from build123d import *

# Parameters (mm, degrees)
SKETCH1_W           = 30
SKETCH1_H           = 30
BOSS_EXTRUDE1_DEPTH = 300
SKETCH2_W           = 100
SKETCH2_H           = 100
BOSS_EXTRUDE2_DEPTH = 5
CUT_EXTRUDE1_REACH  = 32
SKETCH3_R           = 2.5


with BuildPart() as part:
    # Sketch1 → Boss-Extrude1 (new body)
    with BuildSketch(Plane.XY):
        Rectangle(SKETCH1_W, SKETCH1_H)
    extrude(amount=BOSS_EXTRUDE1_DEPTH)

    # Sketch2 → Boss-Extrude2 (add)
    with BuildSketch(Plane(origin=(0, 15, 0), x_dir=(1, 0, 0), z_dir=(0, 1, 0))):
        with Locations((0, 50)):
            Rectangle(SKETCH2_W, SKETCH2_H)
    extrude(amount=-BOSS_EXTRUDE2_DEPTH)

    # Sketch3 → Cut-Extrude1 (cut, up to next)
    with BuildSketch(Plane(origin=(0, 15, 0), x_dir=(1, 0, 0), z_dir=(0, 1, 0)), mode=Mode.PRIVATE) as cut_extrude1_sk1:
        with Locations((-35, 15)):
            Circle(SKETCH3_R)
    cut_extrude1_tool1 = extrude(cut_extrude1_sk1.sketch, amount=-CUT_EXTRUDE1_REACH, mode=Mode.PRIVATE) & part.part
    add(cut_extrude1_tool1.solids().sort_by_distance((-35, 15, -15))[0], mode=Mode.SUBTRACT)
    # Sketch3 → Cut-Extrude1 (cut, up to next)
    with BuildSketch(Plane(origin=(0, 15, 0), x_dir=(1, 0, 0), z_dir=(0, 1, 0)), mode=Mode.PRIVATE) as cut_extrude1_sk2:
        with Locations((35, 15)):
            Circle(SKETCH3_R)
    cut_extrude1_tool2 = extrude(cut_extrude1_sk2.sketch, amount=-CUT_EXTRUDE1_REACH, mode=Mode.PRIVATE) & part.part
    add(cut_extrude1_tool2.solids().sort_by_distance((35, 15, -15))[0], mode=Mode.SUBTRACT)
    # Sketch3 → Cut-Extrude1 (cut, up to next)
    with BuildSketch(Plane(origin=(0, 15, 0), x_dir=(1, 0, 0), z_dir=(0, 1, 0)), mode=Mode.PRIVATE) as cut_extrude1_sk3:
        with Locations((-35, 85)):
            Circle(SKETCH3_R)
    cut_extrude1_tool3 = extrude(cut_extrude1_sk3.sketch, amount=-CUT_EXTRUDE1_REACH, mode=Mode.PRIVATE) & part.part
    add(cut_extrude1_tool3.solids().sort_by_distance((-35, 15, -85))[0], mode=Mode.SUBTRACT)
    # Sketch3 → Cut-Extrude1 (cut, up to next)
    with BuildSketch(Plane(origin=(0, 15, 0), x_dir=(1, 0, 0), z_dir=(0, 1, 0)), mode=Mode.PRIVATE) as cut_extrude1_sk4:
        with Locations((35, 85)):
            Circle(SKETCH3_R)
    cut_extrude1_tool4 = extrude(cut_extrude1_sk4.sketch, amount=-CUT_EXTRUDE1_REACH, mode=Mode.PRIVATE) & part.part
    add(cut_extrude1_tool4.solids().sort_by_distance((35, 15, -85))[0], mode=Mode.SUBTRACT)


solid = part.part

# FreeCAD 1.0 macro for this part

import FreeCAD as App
import Part
import Sketcher
from FreeCAD import Vector
Q = App.Units.Quantity


def add_polygon(sketch, points):
    """Adds a closed chain of lines whose ends are joined by coincident constraints."""
    first, n = sketch.GeometryCount, len(points)
    for a, b in zip(points, points[1:] + points[:1]):
        sketch.addGeometry(Part.LineSegment(App.Vector(*a, 0), App.Vector(*b, 0)), False)
    for i in range(n):
        sketch.addConstraint(Sketcher.Constraint("Coincident", first + i, 2, first + (i + 1) % n, 1))

doc = App.newDocument("Part")
params = doc.addObject("Spreadsheet::Sheet", "Params")
for row, (alias, value) in enumerate([
    ("sketch1_width", "30 mm"),
    ("pad1_length", "300 mm"),
    ("sketch2_width", "100 mm"),
    ("pad2_length", "5 mm"),
    ("sketch3_diameter", "5 mm"),
    ("sketch4_diameter", "5 mm"),
    ("sketch5_diameter", "5 mm"),
    ("sketch6_diameter", "5 mm"),
], start=1):
    params.set(f"A{row}", alias)
    params.set(f"B{row}", "=" + value)
    params.setAlias(f"B{row}", alias)

body = doc.addObject("PartDesign::Body", "Body")

sketch1 = body.newObject("Sketcher::SketchObject", "Sketch")
sketch1.AttachmentSupport = (doc.getObject("XY_Plane"), [""])
sketch1.MapMode = "FlatFace"
add_polygon(sketch1, [(-15, 15), (-15, -15), (15, -15), (15, 15)])
sketch1.addConstraint([
    Sketcher.Constraint("Vertical", 0),
    Sketcher.Constraint("Horizontal", 1),
    Sketcher.Constraint("Vertical", 2),
    Sketcher.Constraint("Horizontal", 3),
    Sketcher.Constraint("Symmetric", 0, 2, 2, 2, -1, 1),
    Sketcher.Constraint("Equal", 3, 0),
    Sketcher.Constraint("DistanceX", 1, 1, 1, 2, Q("30 mm")),
])
sketch1.setExpression("Constraints[10]", "Params.sketch1_width")
pad1 = body.newObject("PartDesign::Pad", "Pad")
pad1.Profile = sketch1
pad1.setExpression("Length", "Params.pad1_length")

sketch2 = body.newObject("Sketcher::SketchObject", "Sketch001")
sketch2.AttachmentSupport = (doc.getObject("XZ_Plane"), [""])
sketch2.MapMode = "FlatFace"
sketch2.AttachmentOffset = App.Placement(Vector(0, 0, -15), App.Rotation())
add_polygon(sketch2, [(-50, -100), (-50, 0), (50, 0), (50, -100)])
sketch2.addConstraint([
    Sketcher.Constraint("Vertical", 0),
    Sketcher.Constraint("Horizontal", 1),
    Sketcher.Constraint("Vertical", 2),
    Sketcher.Constraint("Horizontal", 3),
    Sketcher.Constraint("Symmetric", 0, 2, 1, 2, -1, 1),
    Sketcher.Constraint("Equal", 3, 0),
    Sketcher.Constraint("DistanceX", 1, 1, 1, 2, Q("100 mm")),
])
sketch2.setExpression("Constraints[10]", "Params.sketch2_width")
pad2 = body.newObject("PartDesign::Pad", "Pad001")
pad2.Profile = sketch2
pad2.setExpression("Length", "Params.pad2_length")

sketch3 = body.newObject("Sketcher::SketchObject", "Sketch002")
sketch3.AttachmentSupport = (doc.getObject("XZ_Plane"), [""])
sketch3.MapMode = "FlatFace"
sketch3.AttachmentOffset = App.Placement(Vector(0, 0, -15), App.Rotation())
sketch3.addGeometry(Part.Circle(Vector(-35, -15, 0), Vector(0, 0, 1), 2.5), False)
sketch3.addConstraint([
    Sketcher.Constraint("Diameter", 0, Q("5 mm")),
    Sketcher.Constraint("DistanceX", 0, 3, -1, 1, Q("35 mm")),
    Sketcher.Constraint("DistanceY", 0, 3, -1, 1, Q("15 mm")),
])
sketch3.setExpression("Constraints[0]", "Params.sketch3_diameter")
pocket1 = body.newObject("PartDesign::Pocket", "Pocket")
pocket1.Profile = sketch3
pocket1.Type = "UpToFirst"
pocket1.Reversed = True

sketch4 = body.newObject("Sketcher::SketchObject", "Sketch003")
sketch4.AttachmentSupport = (doc.getObject("XZ_Plane"), [""])
sketch4.MapMode = "FlatFace"
sketch4.AttachmentOffset = App.Placement(Vector(0, 0, -15), App.Rotation())
sketch4.addGeometry(Part.Circle(Vector(35, -15, 0), Vector(0, 0, 1), 2.5), False)
sketch4.addConstraint([
    Sketcher.Constraint("Diameter", 0, Q("5 mm")),
    Sketcher.Constraint("DistanceX", -1, 1, 0, 3, Q("35 mm")),
    Sketcher.Constraint("DistanceY", 0, 3, -1, 1, Q("15 mm")),
])
sketch4.setExpression("Constraints[0]", "Params.sketch4_diameter")
pocket2 = body.newObject("PartDesign::Pocket", "Pocket001")
pocket2.Profile = sketch4
pocket2.Type = "UpToFirst"
pocket2.Reversed = True

sketch5 = body.newObject("Sketcher::SketchObject", "Sketch004")
sketch5.AttachmentSupport = (doc.getObject("XZ_Plane"), [""])
sketch5.MapMode = "FlatFace"
sketch5.AttachmentOffset = App.Placement(Vector(0, 0, -15), App.Rotation())
sketch5.addGeometry(Part.Circle(Vector(-35, -85, 0), Vector(0, 0, 1), 2.5), False)
sketch5.addConstraint([
    Sketcher.Constraint("Diameter", 0, Q("5 mm")),
    Sketcher.Constraint("DistanceX", 0, 3, -1, 1, Q("35 mm")),
    Sketcher.Constraint("DistanceY", 0, 3, -1, 1, Q("85 mm")),
])
sketch5.setExpression("Constraints[0]", "Params.sketch5_diameter")
pocket3 = body.newObject("PartDesign::Pocket", "Pocket002")
pocket3.Profile = sketch5
pocket3.Type = "UpToFirst"
pocket3.Reversed = True

sketch6 = body.newObject("Sketcher::SketchObject", "Sketch005")
sketch6.AttachmentSupport = (doc.getObject("XZ_Plane"), [""])
sketch6.MapMode = "FlatFace"
sketch6.AttachmentOffset = App.Placement(Vector(0, 0, -15), App.Rotation())
sketch6.addGeometry(Part.Circle(Vector(35, -85, 0), Vector(0, 0, 1), 2.5), False)
sketch6.addConstraint([
    Sketcher.Constraint("Diameter", 0, Q("5 mm")),
    Sketcher.Constraint("DistanceX", -1, 1, 0, 3, Q("35 mm")),
    Sketcher.Constraint("DistanceY", 0, 3, -1, 1, Q("85 mm")),
])
sketch6.setExpression("Constraints[0]", "Params.sketch6_diameter")
pocket4 = body.newObject("PartDesign::Pocket", "Pocket003")
pocket4.Profile = sketch6
pocket4.Type = "UpToFirst"
pocket4.Reversed = True

doc.recompute()
